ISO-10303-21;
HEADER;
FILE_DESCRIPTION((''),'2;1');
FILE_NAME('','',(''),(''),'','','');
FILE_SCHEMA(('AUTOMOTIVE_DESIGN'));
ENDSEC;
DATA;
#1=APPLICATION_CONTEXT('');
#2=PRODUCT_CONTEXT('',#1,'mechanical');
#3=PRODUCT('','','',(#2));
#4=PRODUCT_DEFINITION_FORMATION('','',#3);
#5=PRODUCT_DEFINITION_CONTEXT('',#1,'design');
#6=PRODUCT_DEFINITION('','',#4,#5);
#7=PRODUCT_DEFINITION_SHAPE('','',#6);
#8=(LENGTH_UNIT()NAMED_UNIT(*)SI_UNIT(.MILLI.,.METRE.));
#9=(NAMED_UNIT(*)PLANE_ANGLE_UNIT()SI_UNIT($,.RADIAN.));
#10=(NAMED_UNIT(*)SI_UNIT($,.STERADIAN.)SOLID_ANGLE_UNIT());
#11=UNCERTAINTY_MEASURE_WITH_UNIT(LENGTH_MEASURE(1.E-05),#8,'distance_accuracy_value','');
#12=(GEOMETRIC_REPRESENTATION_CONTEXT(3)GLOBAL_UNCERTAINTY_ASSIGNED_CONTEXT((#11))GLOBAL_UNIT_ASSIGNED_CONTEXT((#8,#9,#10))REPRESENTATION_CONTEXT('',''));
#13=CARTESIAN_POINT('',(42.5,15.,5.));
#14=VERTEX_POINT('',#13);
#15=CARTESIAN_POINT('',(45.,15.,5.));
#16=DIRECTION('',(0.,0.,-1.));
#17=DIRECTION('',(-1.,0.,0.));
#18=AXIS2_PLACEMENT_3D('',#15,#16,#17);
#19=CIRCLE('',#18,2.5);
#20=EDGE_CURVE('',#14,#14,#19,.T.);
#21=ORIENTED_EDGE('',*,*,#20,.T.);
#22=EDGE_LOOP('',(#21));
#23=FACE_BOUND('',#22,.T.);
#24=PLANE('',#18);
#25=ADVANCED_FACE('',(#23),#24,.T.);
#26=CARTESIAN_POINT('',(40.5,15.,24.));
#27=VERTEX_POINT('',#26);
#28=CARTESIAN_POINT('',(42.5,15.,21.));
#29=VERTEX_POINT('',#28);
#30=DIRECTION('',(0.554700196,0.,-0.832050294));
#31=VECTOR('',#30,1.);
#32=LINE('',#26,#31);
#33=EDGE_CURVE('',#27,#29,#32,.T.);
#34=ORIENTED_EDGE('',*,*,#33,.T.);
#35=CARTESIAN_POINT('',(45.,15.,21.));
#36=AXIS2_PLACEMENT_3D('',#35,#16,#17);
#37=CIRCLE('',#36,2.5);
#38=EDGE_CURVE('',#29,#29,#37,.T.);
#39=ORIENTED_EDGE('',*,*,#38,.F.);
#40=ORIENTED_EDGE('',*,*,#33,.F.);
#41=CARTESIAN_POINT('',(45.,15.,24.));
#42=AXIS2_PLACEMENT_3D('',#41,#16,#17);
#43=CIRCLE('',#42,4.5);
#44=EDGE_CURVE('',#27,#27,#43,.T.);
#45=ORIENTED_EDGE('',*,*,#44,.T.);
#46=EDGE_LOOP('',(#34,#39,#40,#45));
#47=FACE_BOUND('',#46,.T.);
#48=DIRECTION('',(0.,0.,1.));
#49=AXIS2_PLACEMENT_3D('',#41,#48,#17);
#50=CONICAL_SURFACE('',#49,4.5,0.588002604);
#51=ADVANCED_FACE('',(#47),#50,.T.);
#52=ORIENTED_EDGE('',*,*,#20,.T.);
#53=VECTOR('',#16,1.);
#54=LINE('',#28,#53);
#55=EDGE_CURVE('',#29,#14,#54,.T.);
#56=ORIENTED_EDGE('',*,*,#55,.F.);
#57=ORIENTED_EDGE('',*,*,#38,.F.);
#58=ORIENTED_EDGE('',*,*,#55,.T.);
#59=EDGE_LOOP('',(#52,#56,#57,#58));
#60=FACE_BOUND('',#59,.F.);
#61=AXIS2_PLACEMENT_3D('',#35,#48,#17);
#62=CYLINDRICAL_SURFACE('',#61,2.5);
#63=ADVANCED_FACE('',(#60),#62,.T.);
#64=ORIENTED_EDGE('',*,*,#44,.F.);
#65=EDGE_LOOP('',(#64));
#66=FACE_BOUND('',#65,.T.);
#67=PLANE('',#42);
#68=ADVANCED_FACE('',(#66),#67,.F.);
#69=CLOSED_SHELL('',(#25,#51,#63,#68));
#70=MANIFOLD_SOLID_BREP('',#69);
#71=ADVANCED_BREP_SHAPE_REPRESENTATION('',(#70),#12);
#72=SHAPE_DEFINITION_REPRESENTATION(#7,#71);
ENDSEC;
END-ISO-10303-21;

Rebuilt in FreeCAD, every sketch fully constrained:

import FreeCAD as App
import Part
import Sketcher


def add_polygon(sketch, points):
    """Adds a closed chain of lines whose ends are joined by coincident constraints."""
    first, n = sketch.GeometryCount, len(points)
    for a, b in zip(points, points[1:] + points[:1]):
        sketch.addGeometry(Part.LineSegment(App.Vector(*a, 0), App.Vector(*b, 0)), False)
    for i in range(n):
        sketch.addConstraint(Sketcher.Constraint("Coincident", first + i, 2, first + (i + 1) % n, 1))

doc = App.newDocument("Part")
body = doc.addObject("PartDesign::Body", "Body")

# Sketch on XZ plane
sketch1 = body.newObject("Sketcher::SketchObject", "Sketch")
sketch1.AttachmentSupport = (doc.getObject("XZ_Plane"), [""])
sketch1.MapMode = "FlatFace"
add_polygon(sketch1, [(0, -3), (4.5, -3), (2.5, 0), (0, 0)])  # lines 0-3
sketch1.addConstraint(Sketcher.Constraint("Horizontal", 0))
sketch1.addConstraint(Sketcher.Constraint("Horizontal", 2))
sketch1.addConstraint(Sketcher.Constraint("Vertical", 3))
sketch1.addConstraint(Sketcher.Constraint("Coincident", 2, 2, -1, 1))
sketch1.addConstraint(Sketcher.Constraint("DistanceY", 3, 2, 3, 1, 3.0))
sketch1.addConstraint(Sketcher.Constraint("DistanceX", 0, 1, 0, 2, 4.5))
sketch1.addConstraint(Sketcher.Constraint("DistanceX", 2, 2, 2, 1, 2.5))
revolution = body.newObject("PartDesign::Revolution", "Revolution")
revolution.Profile = sketch1
revolution.ReferenceAxis = (sketch1, ["V_Axis"])
revolution.Angle = 360
body2 = doc.addObject("PartDesign::Body", "Body001")

# Sketch on XY plane
sketch2 = body2.newObject("Sketcher::SketchObject", "Sketch001")
sketch2.AttachmentSupport = (doc.getObject("XY_Plane001"), [""])
sketch2.MapMode = "FlatFace"
sketch2.addGeometry(Part.Circle(App.Vector(0, 0, 0), App.Vector(0, 0, 1), 2.5), False)
sketch2.addConstraint(Sketcher.Constraint("Coincident", 0, 3, -1, 1))
sketch2.addConstraint(Sketcher.Constraint("Diameter", 0, 5.0))
pad1 = body2.newObject("PartDesign::Pad", "Pad")
pad1.Profile = sketch2
pad1.Length = 16
doc.recompute()

boolean = body2.newObject("PartDesign::Boolean", "Boolean")
boolean.Type = "Fuse"
boolean.addObjects([body])
body3 = doc.addObject("PartDesign::Body", "Body002")
doc.recompute()

body2.Placement = App.Placement(App.Vector(45, 15, 21), App.Rotation(App.Vector(0, 1, 0), 180))
boolean2 = body3.newObject("PartDesign::Boolean", "Boolean001")
boolean2.Type = "Fuse"
boolean2.addObjects([body2])

doc.recompute()
